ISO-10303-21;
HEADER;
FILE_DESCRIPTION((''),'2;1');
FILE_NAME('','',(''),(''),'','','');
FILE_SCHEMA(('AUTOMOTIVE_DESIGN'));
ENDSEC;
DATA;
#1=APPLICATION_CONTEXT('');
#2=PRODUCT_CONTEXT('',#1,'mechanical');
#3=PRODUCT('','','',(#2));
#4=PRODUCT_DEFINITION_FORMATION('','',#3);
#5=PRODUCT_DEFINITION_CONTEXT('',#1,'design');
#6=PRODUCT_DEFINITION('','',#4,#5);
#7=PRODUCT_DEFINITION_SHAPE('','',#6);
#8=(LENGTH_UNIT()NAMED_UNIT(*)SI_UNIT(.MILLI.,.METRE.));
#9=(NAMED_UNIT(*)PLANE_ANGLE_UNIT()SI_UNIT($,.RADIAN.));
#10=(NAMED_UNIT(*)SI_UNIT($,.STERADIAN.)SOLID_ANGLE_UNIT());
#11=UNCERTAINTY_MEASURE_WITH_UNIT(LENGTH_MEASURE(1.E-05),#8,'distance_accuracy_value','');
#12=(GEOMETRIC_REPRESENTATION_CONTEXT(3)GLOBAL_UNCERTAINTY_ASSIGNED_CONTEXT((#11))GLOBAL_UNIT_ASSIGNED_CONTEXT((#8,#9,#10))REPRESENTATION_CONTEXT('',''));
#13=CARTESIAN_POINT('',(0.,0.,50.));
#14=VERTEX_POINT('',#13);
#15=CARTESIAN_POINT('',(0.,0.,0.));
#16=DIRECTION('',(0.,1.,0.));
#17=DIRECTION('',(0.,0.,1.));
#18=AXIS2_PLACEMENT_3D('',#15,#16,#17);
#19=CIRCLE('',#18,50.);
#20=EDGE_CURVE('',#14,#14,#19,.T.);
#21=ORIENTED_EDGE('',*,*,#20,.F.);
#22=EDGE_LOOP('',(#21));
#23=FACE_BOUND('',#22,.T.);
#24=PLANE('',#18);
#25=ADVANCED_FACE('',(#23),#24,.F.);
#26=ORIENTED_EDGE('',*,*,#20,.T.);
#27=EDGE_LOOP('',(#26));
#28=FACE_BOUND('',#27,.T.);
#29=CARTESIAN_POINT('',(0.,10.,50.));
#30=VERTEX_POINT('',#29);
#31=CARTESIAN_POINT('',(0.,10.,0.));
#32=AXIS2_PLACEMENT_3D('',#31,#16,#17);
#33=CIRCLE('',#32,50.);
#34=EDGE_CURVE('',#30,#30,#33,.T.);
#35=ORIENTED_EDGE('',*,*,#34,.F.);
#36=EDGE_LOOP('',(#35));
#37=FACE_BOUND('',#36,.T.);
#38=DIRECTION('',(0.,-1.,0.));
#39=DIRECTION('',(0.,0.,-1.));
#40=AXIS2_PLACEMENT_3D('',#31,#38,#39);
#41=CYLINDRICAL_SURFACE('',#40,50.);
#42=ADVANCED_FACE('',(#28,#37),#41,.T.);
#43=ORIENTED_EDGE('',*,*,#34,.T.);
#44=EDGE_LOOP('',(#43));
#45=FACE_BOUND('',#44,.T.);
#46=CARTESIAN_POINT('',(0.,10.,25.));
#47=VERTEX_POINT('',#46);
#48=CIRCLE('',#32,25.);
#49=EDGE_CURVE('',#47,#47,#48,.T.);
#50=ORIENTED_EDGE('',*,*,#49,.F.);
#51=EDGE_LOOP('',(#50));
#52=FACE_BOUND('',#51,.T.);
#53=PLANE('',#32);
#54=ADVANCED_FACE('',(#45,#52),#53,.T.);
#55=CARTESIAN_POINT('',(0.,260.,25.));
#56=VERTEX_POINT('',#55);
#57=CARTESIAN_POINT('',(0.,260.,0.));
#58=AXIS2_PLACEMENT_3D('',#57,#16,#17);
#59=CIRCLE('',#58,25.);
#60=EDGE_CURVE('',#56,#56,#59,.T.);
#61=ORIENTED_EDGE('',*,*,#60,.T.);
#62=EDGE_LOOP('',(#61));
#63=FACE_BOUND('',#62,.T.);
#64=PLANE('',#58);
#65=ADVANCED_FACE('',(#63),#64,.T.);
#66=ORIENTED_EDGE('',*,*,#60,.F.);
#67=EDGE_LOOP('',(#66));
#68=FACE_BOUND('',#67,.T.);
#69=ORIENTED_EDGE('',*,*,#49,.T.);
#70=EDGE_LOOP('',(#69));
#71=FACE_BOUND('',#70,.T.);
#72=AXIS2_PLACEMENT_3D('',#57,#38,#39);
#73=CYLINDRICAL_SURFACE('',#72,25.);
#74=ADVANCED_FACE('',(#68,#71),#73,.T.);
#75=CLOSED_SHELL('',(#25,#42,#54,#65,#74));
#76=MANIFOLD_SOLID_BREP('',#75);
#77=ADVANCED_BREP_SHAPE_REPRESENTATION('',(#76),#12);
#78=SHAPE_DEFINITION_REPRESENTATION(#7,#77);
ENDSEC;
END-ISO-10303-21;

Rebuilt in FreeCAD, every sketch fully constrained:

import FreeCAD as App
import Part
import Sketcher

V = App.Vector

doc = App.newDocument("Part")
body = doc.addObject("PartDesign::Body", "Body")

sketch1 = doc.addObject("Sketcher::SketchObject", "Sketch")
body.addObject(sketch1)
sketch1.AttachmentSupport = (doc.XZ_Plane, [""])
sketch1.MapMode = "FlatFace"
sketch1.addGeometry(Part.Circle(V(0, 0, 0), V(0, 0, 1), 50), False)
sketch1.addConstraint([
    Sketcher.Constraint("Coincident", 0, 3, -1, 1),
    Sketcher.Constraint("Diameter", 0, 100.0),
])
pad1 = doc.addObject("PartDesign::Pad", "Pad")
body.addObject(pad1)
pad1.Profile = sketch1
pad1.Length = 10
pad1.Reversed = True

sketch2 = doc.addObject("Sketcher::SketchObject", "Sketch001")
body.addObject(sketch2)
sketch2.AttachmentSupport = (doc.XZ_Plane, [""])
sketch2.MapMode = "FlatFace"
sketch2.AttachmentOffset = App.Placement(V(0, 0, -10), App.Rotation())
sketch2.addGeometry(Part.Circle(V(0, 0, 0), V(0, 0, 1), 25), False)
sketch2.addConstraint([
    Sketcher.Constraint("Coincident", 0, 3, -1, 1),
    Sketcher.Constraint("Diameter", 0, 50.0),
])
pad2 = doc.addObject("PartDesign::Pad", "Pad001")
body.addObject(pad2)
pad2.Profile = sketch2
pad2.Length = 250
pad2.Reversed = True

doc.recompute()
